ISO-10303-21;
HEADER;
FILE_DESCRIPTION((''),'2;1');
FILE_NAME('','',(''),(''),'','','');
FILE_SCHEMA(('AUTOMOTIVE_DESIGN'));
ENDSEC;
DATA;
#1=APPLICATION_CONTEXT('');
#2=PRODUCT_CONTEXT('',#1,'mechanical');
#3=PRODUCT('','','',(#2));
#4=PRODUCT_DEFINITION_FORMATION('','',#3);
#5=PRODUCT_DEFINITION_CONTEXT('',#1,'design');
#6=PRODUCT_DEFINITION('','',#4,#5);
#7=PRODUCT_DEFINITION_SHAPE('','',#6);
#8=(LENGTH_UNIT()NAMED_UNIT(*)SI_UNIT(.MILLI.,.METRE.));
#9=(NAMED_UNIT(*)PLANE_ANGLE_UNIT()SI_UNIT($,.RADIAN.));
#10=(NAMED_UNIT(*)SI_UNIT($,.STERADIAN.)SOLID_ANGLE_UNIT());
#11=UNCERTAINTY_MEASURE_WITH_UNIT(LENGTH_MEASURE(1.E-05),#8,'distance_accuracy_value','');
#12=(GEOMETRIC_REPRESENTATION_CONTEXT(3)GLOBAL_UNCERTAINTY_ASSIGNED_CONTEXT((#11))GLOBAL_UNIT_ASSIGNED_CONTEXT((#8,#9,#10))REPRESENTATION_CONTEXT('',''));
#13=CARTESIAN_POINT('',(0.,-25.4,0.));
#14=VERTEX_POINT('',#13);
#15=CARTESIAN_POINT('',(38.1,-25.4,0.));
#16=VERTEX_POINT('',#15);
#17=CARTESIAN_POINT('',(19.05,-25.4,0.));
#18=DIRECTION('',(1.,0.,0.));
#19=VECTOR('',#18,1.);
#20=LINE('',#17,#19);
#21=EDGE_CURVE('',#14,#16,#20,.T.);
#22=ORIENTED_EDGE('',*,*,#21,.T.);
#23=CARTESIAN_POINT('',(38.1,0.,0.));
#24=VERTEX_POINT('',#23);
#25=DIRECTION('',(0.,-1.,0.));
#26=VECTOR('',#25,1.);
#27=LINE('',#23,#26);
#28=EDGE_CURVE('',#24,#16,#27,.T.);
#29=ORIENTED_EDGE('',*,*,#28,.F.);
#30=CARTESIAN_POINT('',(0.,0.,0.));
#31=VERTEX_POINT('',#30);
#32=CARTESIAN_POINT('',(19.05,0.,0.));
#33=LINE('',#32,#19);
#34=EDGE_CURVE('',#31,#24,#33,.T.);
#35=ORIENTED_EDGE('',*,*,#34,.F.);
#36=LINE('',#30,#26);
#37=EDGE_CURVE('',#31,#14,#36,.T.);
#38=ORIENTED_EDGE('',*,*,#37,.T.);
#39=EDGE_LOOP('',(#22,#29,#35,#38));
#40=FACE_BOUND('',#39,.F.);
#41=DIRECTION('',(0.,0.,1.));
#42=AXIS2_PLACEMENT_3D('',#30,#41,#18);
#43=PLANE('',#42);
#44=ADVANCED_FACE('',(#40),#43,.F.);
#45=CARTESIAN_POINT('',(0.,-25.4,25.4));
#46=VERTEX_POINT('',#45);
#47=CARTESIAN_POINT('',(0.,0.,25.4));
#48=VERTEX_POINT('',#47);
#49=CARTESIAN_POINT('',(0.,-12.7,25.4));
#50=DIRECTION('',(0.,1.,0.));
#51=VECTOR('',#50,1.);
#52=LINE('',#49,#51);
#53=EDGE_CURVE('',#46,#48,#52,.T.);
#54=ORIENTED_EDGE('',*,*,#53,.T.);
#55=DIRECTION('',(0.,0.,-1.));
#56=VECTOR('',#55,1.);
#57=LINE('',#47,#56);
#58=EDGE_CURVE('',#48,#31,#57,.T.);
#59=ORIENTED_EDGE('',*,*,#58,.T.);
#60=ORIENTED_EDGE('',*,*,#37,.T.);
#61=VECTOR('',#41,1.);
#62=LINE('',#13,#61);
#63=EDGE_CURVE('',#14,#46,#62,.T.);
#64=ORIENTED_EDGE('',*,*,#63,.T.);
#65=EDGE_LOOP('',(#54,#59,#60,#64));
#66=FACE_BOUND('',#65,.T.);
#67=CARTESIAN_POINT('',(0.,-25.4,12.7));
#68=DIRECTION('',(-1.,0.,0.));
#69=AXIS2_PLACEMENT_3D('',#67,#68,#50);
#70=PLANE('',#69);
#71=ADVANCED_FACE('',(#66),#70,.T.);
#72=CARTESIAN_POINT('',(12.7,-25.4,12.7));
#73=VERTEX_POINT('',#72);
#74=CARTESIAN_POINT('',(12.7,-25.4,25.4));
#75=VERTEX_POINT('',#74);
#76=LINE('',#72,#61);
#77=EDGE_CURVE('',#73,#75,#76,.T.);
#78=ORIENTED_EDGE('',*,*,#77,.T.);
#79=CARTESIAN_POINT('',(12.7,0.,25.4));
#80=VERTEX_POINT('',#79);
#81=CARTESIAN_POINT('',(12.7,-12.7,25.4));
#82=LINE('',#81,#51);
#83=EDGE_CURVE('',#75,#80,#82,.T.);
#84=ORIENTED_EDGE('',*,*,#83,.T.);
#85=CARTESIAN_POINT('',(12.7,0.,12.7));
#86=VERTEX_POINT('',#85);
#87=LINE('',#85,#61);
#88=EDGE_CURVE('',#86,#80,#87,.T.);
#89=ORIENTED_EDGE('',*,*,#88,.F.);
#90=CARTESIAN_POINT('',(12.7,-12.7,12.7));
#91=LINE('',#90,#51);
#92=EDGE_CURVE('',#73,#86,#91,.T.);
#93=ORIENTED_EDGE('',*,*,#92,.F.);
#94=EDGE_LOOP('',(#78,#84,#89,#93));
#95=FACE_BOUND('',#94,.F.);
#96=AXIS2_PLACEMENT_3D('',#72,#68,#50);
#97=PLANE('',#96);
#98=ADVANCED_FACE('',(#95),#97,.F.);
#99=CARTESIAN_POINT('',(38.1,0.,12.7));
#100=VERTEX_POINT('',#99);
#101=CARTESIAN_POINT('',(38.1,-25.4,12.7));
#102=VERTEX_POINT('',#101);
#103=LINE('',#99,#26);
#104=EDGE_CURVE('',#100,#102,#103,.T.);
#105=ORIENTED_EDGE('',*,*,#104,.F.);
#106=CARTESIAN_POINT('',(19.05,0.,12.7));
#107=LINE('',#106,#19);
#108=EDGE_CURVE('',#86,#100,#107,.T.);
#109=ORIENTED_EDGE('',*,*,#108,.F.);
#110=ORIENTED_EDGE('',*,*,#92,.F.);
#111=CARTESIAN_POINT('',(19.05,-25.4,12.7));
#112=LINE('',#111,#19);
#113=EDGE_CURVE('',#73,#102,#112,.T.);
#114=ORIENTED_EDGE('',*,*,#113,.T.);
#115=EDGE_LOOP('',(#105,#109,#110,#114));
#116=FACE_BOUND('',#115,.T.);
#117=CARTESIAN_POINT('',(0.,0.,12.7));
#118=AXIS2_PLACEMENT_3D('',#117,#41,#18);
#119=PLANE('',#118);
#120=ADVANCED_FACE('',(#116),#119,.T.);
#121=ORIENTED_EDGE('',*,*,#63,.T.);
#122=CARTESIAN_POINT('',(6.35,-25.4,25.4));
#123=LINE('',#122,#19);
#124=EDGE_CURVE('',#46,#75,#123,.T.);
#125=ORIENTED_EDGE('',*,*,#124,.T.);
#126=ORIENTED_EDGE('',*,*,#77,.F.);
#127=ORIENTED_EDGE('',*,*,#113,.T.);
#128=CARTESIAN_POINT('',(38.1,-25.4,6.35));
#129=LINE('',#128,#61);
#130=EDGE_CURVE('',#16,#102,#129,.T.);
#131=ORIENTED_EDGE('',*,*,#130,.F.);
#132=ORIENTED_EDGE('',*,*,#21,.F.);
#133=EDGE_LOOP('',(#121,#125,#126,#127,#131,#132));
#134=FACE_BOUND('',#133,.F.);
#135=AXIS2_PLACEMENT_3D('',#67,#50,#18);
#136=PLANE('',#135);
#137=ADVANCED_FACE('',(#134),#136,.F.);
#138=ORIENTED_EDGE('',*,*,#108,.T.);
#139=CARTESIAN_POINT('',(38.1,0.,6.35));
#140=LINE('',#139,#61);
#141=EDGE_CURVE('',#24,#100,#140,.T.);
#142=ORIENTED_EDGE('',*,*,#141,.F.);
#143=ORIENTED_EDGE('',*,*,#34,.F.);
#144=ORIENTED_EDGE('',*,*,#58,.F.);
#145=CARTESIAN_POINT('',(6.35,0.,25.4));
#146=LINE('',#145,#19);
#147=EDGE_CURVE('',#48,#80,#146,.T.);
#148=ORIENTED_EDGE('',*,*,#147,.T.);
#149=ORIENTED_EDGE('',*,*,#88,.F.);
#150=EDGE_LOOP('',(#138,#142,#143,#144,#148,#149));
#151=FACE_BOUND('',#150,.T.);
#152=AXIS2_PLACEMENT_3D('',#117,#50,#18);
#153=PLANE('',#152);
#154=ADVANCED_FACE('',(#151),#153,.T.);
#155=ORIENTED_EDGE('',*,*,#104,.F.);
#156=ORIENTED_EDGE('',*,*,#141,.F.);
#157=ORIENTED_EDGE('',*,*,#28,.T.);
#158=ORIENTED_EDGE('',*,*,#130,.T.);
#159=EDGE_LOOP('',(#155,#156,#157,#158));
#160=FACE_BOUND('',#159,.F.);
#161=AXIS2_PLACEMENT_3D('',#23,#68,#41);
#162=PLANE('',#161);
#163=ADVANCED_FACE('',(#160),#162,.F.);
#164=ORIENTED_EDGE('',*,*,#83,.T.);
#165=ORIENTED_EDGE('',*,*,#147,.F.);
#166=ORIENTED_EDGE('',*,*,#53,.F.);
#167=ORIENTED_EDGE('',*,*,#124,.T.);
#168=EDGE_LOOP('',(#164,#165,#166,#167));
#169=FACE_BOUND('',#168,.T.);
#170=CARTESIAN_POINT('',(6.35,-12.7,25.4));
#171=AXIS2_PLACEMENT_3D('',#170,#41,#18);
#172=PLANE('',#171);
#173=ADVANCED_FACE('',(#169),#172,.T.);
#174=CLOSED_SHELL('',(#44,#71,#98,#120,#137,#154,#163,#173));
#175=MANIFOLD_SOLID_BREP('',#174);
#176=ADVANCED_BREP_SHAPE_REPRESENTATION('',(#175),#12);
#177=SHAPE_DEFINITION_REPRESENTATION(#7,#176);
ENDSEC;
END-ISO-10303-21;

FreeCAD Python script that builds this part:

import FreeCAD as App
import Part
import Sketcher

V = App.Vector
Q = App.Units.Quantity


def add_polygon(sketch, points):
    """Adds a closed chain of lines whose ends are joined by coincident constraints."""
    first, n = sketch.GeometryCount, len(points)
    for a, b in zip(points, points[1:] + points[:1]):
        sketch.addGeometry(Part.LineSegment(App.Vector(*a, 0), App.Vector(*b, 0)), False)
    for i in range(n):
        sketch.addConstraint(Sketcher.Constraint("Coincident", first + i, 2, first + (i + 1) % n, 1))

doc = App.newDocument("Part")
body = doc.addObject("PartDesign::Body", "Body")

# Sketch on XZ plane
sketch1 = body.newObject("Sketcher::SketchObject", "Sketch")
sketch1.AttachmentSupport = (doc.getObject("XZ_Plane"), [""])
sketch1.MapMode = "FlatFace"
add_polygon(sketch1, [(0, 13), (0, 0), (38, 0), (38, 13)])  # lines 0-3
sketch1.addConstraint([
    Sketcher.Constraint("Vertical", 0),
    Sketcher.Constraint("Horizontal", 1),
    Sketcher.Constraint("Vertical", 2),
    Sketcher.Constraint("Horizontal", 3),
    Sketcher.Constraint("Coincident", 0, 2, -1, 1),
    Sketcher.Constraint("DistanceX", 1, 1, 1, 2, Q("1.5 in")),
    Sketcher.Constraint("DistanceY", 0, 2, 0, 1, Q("0.5 in")),
])
pad1 = body.newObject("PartDesign::Pad", "Pad")
pad1.Profile = sketch1
pad1.Length = Q("1 in")

# Sketch on XY plane
sketch2 = body.newObject("Sketcher::SketchObject", "Sketch001")
sketch2.AttachmentSupport = (doc.getObject("XY_Plane"), [""])
sketch2.MapMode = "FlatFace"
sketch2.AttachmentOffset = App.Placement(V(0, 0, 0.5 * 25.4), App.Rotation())
add_polygon(sketch2, [(0, 0), (0, -25), (13, -25), (13, 0)])  # lines 0-3
sketch2.addConstraint([
    Sketcher.Constraint("Vertical", 0),
    Sketcher.Constraint("Horizontal", 1),
    Sketcher.Constraint("Vertical", 2),
    Sketcher.Constraint("Horizontal", 3),
    Sketcher.Constraint("Coincident", 3, 2, -1, 1),
    Sketcher.Constraint("DistanceY", 0, 2, 0, 1, Q("1 in")),
    Sketcher.Constraint("DistanceX", 1, 1, 1, 2, Q("0.5 in")),
])
pad2 = body.newObject("PartDesign::Pad", "Pad001")
pad2.Profile = sketch2
pad2.Length = Q("0.5 in")

doc.recompute()
